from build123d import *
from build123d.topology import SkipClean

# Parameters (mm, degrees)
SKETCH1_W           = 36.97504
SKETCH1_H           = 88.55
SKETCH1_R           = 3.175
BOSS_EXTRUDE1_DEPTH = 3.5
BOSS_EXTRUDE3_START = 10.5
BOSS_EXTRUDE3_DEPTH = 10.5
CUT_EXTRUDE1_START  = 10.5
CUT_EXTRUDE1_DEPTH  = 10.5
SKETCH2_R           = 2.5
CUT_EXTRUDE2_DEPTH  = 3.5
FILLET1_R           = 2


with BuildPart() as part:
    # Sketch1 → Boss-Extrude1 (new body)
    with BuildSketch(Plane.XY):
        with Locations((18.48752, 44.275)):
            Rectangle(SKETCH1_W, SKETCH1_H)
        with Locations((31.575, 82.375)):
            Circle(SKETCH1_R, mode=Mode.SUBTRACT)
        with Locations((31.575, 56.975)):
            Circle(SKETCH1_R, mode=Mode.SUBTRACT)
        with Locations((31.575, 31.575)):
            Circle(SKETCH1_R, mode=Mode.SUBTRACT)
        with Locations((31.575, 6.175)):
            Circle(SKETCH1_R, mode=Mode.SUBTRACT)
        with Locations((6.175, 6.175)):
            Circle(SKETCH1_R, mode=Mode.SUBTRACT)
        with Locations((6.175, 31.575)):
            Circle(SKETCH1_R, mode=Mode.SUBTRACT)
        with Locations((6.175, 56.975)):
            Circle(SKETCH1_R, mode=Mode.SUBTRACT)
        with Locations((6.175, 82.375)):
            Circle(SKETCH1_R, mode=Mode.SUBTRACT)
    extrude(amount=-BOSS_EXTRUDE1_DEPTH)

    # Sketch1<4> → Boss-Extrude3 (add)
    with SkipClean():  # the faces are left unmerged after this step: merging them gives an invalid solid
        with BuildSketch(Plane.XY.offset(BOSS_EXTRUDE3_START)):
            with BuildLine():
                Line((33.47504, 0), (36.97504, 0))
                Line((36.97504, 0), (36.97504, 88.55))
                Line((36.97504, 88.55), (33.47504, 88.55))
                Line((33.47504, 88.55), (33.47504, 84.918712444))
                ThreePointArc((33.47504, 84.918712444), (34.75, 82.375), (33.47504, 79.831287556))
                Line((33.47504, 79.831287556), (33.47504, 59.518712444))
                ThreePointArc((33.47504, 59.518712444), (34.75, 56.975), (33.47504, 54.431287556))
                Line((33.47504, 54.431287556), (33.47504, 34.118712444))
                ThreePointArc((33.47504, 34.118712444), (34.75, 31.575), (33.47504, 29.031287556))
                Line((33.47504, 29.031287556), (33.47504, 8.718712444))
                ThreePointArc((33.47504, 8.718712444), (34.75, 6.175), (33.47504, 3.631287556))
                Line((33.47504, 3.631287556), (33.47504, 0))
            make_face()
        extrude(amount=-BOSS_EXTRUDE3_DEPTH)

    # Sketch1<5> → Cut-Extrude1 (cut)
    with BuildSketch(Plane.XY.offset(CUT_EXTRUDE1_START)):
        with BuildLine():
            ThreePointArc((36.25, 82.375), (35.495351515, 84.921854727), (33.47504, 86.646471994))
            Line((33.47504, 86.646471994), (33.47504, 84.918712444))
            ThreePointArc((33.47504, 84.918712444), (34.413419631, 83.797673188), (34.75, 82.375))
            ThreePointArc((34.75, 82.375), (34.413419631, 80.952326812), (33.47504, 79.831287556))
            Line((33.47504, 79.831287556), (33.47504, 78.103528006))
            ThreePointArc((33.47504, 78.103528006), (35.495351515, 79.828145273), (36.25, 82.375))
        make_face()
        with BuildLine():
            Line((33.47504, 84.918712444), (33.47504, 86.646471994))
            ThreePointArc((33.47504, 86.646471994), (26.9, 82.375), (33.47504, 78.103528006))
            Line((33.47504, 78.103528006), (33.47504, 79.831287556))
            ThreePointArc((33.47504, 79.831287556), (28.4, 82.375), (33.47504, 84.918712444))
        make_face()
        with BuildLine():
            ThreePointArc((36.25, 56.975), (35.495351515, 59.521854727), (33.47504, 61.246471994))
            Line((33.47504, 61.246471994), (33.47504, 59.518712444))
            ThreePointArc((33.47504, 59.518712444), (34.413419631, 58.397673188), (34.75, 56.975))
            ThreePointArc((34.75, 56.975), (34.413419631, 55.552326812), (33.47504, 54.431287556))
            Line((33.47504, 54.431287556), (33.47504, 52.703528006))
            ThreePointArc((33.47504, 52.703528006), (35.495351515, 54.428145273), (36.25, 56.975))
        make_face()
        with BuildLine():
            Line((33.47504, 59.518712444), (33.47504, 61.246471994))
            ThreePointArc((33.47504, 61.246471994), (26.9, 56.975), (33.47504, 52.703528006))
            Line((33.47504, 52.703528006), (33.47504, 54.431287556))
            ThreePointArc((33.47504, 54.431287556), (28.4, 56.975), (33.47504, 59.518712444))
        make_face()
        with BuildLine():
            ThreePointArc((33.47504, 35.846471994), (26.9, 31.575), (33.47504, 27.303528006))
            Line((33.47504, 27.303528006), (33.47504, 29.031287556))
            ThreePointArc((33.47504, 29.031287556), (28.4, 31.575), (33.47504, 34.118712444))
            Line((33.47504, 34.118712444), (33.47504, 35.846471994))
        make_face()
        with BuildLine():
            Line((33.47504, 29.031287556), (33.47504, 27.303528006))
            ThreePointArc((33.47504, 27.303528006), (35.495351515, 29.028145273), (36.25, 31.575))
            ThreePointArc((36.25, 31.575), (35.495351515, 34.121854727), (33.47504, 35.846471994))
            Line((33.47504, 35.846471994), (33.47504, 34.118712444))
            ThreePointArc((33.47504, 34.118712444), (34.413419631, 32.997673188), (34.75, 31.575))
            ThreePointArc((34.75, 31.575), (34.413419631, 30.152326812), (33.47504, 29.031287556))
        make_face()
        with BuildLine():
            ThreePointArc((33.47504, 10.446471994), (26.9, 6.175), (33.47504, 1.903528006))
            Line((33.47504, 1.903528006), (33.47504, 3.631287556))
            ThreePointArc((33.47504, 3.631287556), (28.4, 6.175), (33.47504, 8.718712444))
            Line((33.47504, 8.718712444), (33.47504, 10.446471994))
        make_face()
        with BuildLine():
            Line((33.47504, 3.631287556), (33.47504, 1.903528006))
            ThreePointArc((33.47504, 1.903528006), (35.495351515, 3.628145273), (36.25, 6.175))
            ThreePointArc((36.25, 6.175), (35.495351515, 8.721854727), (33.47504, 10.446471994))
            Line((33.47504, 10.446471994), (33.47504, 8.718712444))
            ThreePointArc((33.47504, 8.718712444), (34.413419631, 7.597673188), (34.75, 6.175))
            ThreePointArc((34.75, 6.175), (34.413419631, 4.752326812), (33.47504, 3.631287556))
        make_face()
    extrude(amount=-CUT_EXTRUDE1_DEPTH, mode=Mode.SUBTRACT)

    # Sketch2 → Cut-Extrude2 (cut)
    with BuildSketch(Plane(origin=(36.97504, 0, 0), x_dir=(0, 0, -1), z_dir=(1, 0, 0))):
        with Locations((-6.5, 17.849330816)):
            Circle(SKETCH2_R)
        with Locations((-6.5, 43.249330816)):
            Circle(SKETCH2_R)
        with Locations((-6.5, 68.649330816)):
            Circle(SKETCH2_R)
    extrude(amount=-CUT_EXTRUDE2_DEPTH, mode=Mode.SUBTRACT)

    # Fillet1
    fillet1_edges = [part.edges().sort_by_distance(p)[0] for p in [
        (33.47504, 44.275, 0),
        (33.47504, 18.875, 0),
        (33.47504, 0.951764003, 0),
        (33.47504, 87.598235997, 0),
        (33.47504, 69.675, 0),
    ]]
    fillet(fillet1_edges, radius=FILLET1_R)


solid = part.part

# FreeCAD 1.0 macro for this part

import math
import FreeCAD as App
import Part
import Sketcher
from FreeCAD import Vector
Q = App.Units.Quantity


def edges_at(feature, points):
    """Names of the edges that pass closest to the given points."""
    edges = feature.Shape.Edges
    near = lambda p: min(range(len(edges)), key=lambda i: edges[i].distToShape(Part.Vertex(*p))[0])
    return sorted({f"Edge{near(p) + 1}" for p in points})

doc = App.newDocument("Part")
body = doc.addObject("PartDesign::Body", "Body")

sketch1 = body.newObject("Sketcher::SketchObject", "Sketch")
sketch1.AttachmentSupport = (doc.getObject("XY_Plane"), [""])
sketch1.MapMode = "FlatFace"
sketch1.addGeometry(Part.LineSegment(Vector(0, 88.5, 0), Vector(0, 0, 0)), False)
sketch1.addGeometry(Part.LineSegment(Vector(0, 0, 0), Vector(37, 0, 0)), False)
sketch1.addGeometry(Part.LineSegment(Vector(37, 0, 0), Vector(37, 88.5, 0)), False)
sketch1.addGeometry(Part.LineSegment(Vector(37, 88.5, 0), Vector(0, 88.5, 0)), False)
sketch1.addGeometry(Part.Circle(Vector(6.2, 6.2, 0), Vector(0, 0, 1), 3.2), False)
sketch1.addGeometry(Part.Circle(Vector(6.2, 31.6, 0), Vector(0, 0, 1), 3.2), False)
sketch1.addGeometry(Part.Circle(Vector(31.6, 6.2, 0), Vector(0, 0, 1), 3.2), False)
sketch1.addGeometry(Part.Circle(Vector(31.6, 31.6, 0), Vector(0, 0, 1), 3.2), False)
sketch1.addGeometry(Part.Circle(Vector(6.2, 57, 0), Vector(0, 0, 1), 3.2), False)
sketch1.addGeometry(Part.Circle(Vector(6.2, 82.4, 0), Vector(0, 0, 1), 3.2), False)
sketch1.addGeometry(Part.Circle(Vector(31.6, 57, 0), Vector(0, 0, 1), 3.2), False)
sketch1.addGeometry(Part.Circle(Vector(31.6, 82.4, 0), Vector(0, 0, 1), 3.2), False)
sketch1.addConstraint(Sketcher.Constraint("Coincident", 0, 2, 1, 1))
sketch1.addConstraint(Sketcher.Constraint("Coincident", 1, 2, 2, 1))
sketch1.addConstraint(Sketcher.Constraint("Coincident", 2, 2, 3, 1))
sketch1.addConstraint(Sketcher.Constraint("Coincident", 3, 2, 0, 1))
sketch1.addConstraint(Sketcher.Constraint("Vertical", 0))
sketch1.addConstraint(Sketcher.Constraint("Horizontal", 1))
sketch1.addConstraint(Sketcher.Constraint("Vertical", 2))
sketch1.addConstraint(Sketcher.Constraint("Horizontal", 3))
sketch1.addConstraint(Sketcher.Constraint("Coincident", 0, 2, -1, 1))
sketch1.addConstraint(Sketcher.Constraint("Equal", 4, 5))
sketch1.addConstraint(Sketcher.Constraint("Equal", 5, 6))
sketch1.addConstraint(Sketcher.Constraint("Equal", 6, 7))
sketch1.addConstraint(Sketcher.Constraint("Equal", 7, 8))
sketch1.addConstraint(Sketcher.Constraint("Equal", 8, 9))
sketch1.addConstraint(Sketcher.Constraint("Equal", 9, 10))
sketch1.addConstraint(Sketcher.Constraint("Equal", 10, 11))
sketch1.addConstraint(Sketcher.Constraint("Horizontal", 4, 3, 6, 3))
sketch1.addConstraint(Sketcher.Constraint("Horizontal", 5, 3, 7, 3))
sketch1.addConstraint(Sketcher.Constraint("Horizontal", 8, 3, 10, 3))
sketch1.addConstraint(Sketcher.Constraint("Horizontal", 9, 3, 11, 3))
sketch1.addConstraint(Sketcher.Constraint("Vertical", 4, 3, 5, 3))
sketch1.addConstraint(Sketcher.Constraint("Vertical", 6, 3, 7, 3))
sketch1.addConstraint(Sketcher.Constraint("Vertical", 5, 3, 8, 3))
sketch1.addConstraint(Sketcher.Constraint("Vertical", 8, 3, 9, 3))
sketch1.addConstraint(Sketcher.Constraint("Vertical", 7, 3, 10, 3))
sketch1.addConstraint(Sketcher.Constraint("Vertical", 10, 3, 11, 3))
sketch1.addConstraint(Sketcher.Constraint("Diameter", 4, Q("6.35 mm")))
sketch1.addConstraint(Sketcher.Constraint("DistanceY", 0, 2, 0, 1, Q("88.55 mm")))
sketch1.addConstraint(Sketcher.Constraint("DistanceY", 4, 3, 5, 3, Q("25.4 mm")))
sketch1.addConstraint(Sketcher.Constraint("DistanceX", 4, 3, 6, 3, Q("25.4 mm")))
sketch1.addConstraint(Sketcher.Constraint("DistanceY", 5, 3, 8, 3, Q("25.4 mm")))
sketch1.addConstraint(Sketcher.Constraint("DistanceY", 8, 3, 9, 3, Q("25.4 mm")))
sketch1.addConstraint(Sketcher.Constraint("DistanceX", -1, 1, 4, 3, Q("6.175 mm")))
sketch1.addConstraint(Sketcher.Constraint("DistanceY", -1, 1, 4, 3, Q("6.175 mm")))
sketch1.addConstraint(Sketcher.Constraint("DistanceX", 1, 1, 1, 2, Q("36.97504 mm")))
pad1 = body.newObject("PartDesign::Pad", "Pad")
pad1.Profile = sketch1
pad1.Length = 3.5
pad1.Reversed = True

sketch2 = body.newObject("Sketcher::SketchObject", "Sketch001")
sketch2.AttachmentSupport = (doc.getObject("XY_Plane"), [""])
sketch2.MapMode = "FlatFace"
sketch2.AttachmentOffset = App.Placement(Vector(0, 0, 10.5), App.Rotation())
sketch2.addGeometry(Part.LineSegment(Vector(33.5, 0, 0), Vector(37, 0, 0)), False)
sketch2.addGeometry(Part.LineSegment(Vector(37, 0, 0), Vector(37, 88.5, 0)), False)
sketch2.addGeometry(Part.LineSegment(Vector(37, 88.5, 0), Vector(33.5, 88.5, 0)), False)
sketch2.addGeometry(Part.LineSegment(Vector(33.5, 88.5, 0), Vector(33.5, 84.9, 0)), False)
sketch2.addGeometry(Part.ArcOfCircle(Part.Circle(Vector(31.6, 82.4, 0), Vector(0, 0, 1), 3.2), math.radians(-53), math.radians(53)), False)
sketch2.addGeometry(Part.LineSegment(Vector(33.5, 79.8, 0), Vector(33.5, 59.5, 0)), False)
sketch2.addGeometry(Part.ArcOfCircle(Part.Circle(Vector(31.6, 57, 0), Vector(0, 0, 1), 3.2), math.radians(-53), math.radians(53)), False)
sketch2.addGeometry(Part.LineSegment(Vector(33.5, 54.4, 0), Vector(33.5, 34.1, 0)), False)
sketch2.addGeometry(Part.ArcOfCircle(Part.Circle(Vector(31.6, 31.6, 0), Vector(0, 0, 1), 3.2), math.radians(-53), math.radians(53)), False)
sketch2.addGeometry(Part.LineSegment(Vector(33.5, 29, 0), Vector(33.5, 8.7, 0)), False)
sketch2.addGeometry(Part.ArcOfCircle(Part.Circle(Vector(31.6, 6.2, 0), Vector(0, 0, 1), 3.2), math.radians(-53), math.radians(53)), False)
sketch2.addGeometry(Part.LineSegment(Vector(33.5, 3.6, 0), Vector(33.5, 0, 0)), False)
sketch2.addConstraint(Sketcher.Constraint("Coincident", 0, 2, 1, 1))
sketch2.addConstraint(Sketcher.Constraint("Coincident", 1, 2, 2, 1))
sketch2.addConstraint(Sketcher.Constraint("Coincident", 2, 2, 3, 1))
sketch2.addConstraint(Sketcher.Constraint("Coincident", 3, 2, 4, 2))
sketch2.addConstraint(Sketcher.Constraint("Coincident", 4, 1, 5, 1))
sketch2.addConstraint(Sketcher.Constraint("Coincident", 5, 2, 6, 2))
sketch2.addConstraint(Sketcher.Constraint("Coincident", 6, 1, 7, 1))
sketch2.addConstraint(Sketcher.Constraint("Coincident", 7, 2, 8, 2))
sketch2.addConstraint(Sketcher.Constraint("Coincident", 8, 1, 9, 1))
sketch2.addConstraint(Sketcher.Constraint("Coincident", 9, 2, 10, 2))
sketch2.addConstraint(Sketcher.Constraint("Coincident", 10, 1, 11, 1))
sketch2.addConstraint(Sketcher.Constraint("Coincident", 11, 2, 0, 1))
sketch2.addConstraint(Sketcher.Constraint("Horizontal", 0))
sketch2.addConstraint(Sketcher.Constraint("Vertical", 1))
sketch2.addConstraint(Sketcher.Constraint("Horizontal", 2))
sketch2.addConstraint(Sketcher.Constraint("Vertical", 3))
sketch2.addConstraint(Sketcher.Constraint("Vertical", 5))
sketch2.addConstraint(Sketcher.Constraint("Vertical", 7))
sketch2.addConstraint(Sketcher.Constraint("Vertical", 9))
sketch2.addConstraint(Sketcher.Constraint("Vertical", 11))
sketch2.addConstraint(Sketcher.Constraint("Equal", 4, 6))
sketch2.addConstraint(Sketcher.Constraint("Equal", 6, 8))
sketch2.addConstraint(Sketcher.Constraint("Equal", 8, 10))
sketch2.addConstraint(Sketcher.Constraint("PointOnObject", 0, 2, -1))
sketch2.addConstraint(Sketcher.Constraint("Vertical", 4, 3, 6, 3))
sketch2.addConstraint(Sketcher.Constraint("Vertical", 6, 3, 8, 3))
sketch2.addConstraint(Sketcher.Constraint("Vertical", 8, 3, 10, 3))
sketch2.addConstraint(Sketcher.Constraint("Vertical", 3, 2, 4, 1))
sketch2.addConstraint(Sketcher.Constraint("Vertical", 5, 2, 6, 1))
sketch2.addConstraint(Sketcher.Constraint("Vertical", 7, 2, 8, 1))
sketch2.addConstraint(Sketcher.Constraint("Vertical", 9, 2, 10, 1))
sketch2.addConstraint(Sketcher.Constraint("Equal", 5, 7))
sketch2.addConstraint(Sketcher.Constraint("Equal", 7, 9))
sketch2.addConstraint(Sketcher.Constraint("Equal", 3, 11))
sketch2.addConstraint(Sketcher.Constraint("DistanceX", 0, 1, 0, 2, Q("3.5 mm")))
sketch2.addConstraint(Sketcher.Constraint("Radius", 4, Q("3.175 mm")))
sketch2.addConstraint(Sketcher.Constraint("DistanceY", 1, 1, 1, 2, Q("88.55 mm")))
sketch2.addConstraint(Sketcher.Constraint("DistanceY", 6, 3, 4, 3, Q("25.4 mm")))
sketch2.addConstraint(Sketcher.Constraint("DistanceX", -1, 1, 4, 3, Q("31.575 mm")))
sketch2.addConstraint(Sketcher.Constraint("DistanceY", 3, 2, 3, 1, Q("3.631288 mm")))
pad2 = body.newObject("PartDesign::Pad", "Pad001")
pad2.Profile = sketch2
pad2.Length = 10.5
pad2.Reversed = True

sketch3 = body.newObject("Sketcher::SketchObject", "Sketch002")
sketch3.AttachmentSupport = (doc.getObject("XY_Plane"), [""])
sketch3.MapMode = "FlatFace"
sketch3.AttachmentOffset = App.Placement(Vector(0, 0, 10.5), App.Rotation())
sketch3.addGeometry(Part.ArcOfCircle(Part.Circle(Vector(31.6, 82.4, 0), Vector(0, 0, 1), 4.7), math.radians(0), math.radians(66)), False)
sketch3.addGeometry(Part.ArcOfCircle(Part.Circle(Vector(31.6, 82.4, 0), Vector(0, 0, 1), 4.7), math.radians(66), math.radians(294)), False)
sketch3.addGeometry(Part.ArcOfCircle(Part.Circle(Vector(31.6, 82.4, 0), Vector(0, 0, 1), 4.7), math.radians(-66), math.radians(0)), False)
sketch3.addGeometry(Part.ArcOfCircle(Part.Circle(Vector(31.6, 82.4, 0), Vector(0, 0, 1), 3.2), math.radians(0), math.radians(53)), False)
sketch3.addGeometry(Part.ArcOfCircle(Part.Circle(Vector(31.6, 82.4, 0), Vector(0, 0, 1), 3.2), math.radians(-53), math.radians(0)), False)
sketch3.addGeometry(Part.ArcOfCircle(Part.Circle(Vector(31.6, 82.4, 0), Vector(0, 0, 1), 3.2), math.radians(53), math.radians(307)), False)
sketch3.addGeometry(Part.ArcOfCircle(Part.Circle(Vector(31.6, 57, 0), Vector(0, 0, 1), 4.7), math.radians(0), math.radians(66)), False)
sketch3.addGeometry(Part.ArcOfCircle(Part.Circle(Vector(31.6, 57, 0), Vector(0, 0, 1), 4.7), math.radians(66), math.radians(294)), False)
sketch3.addGeometry(Part.ArcOfCircle(Part.Circle(Vector(31.6, 57, 0), Vector(0, 0, 1), 4.7), math.radians(-66), math.radians(0)), False)
sketch3.addGeometry(Part.ArcOfCircle(Part.Circle(Vector(31.6, 57, 0), Vector(0, 0, 1), 3.2), math.radians(0), math.radians(53)), False)
sketch3.addGeometry(Part.ArcOfCircle(Part.Circle(Vector(31.6, 57, 0), Vector(0, 0, 1), 3.2), math.radians(-53), math.radians(0)), False)
sketch3.addGeometry(Part.ArcOfCircle(Part.Circle(Vector(31.6, 57, 0), Vector(0, 0, 1), 3.2), math.radians(53), math.radians(307)), False)
sketch3.addGeometry(Part.ArcOfCircle(Part.Circle(Vector(31.6, 31.6, 0), Vector(0, 0, 1), 4.7), math.radians(66), math.radians(294)), False)
sketch3.addGeometry(Part.ArcOfCircle(Part.Circle(Vector(31.6, 31.6, 0), Vector(0, 0, 1), 4.7), math.radians(-66), math.radians(0)), False)
sketch3.addGeometry(Part.ArcOfCircle(Part.Circle(Vector(31.6, 31.6, 0), Vector(0, 0, 1), 4.7), math.radians(0), math.radians(66)), False)
sketch3.addGeometry(Part.ArcOfCircle(Part.Circle(Vector(31.6, 31.6, 0), Vector(0, 0, 1), 3.2), math.radians(53), math.radians(307)), False)
sketch3.addGeometry(Part.ArcOfCircle(Part.Circle(Vector(31.6, 31.6, 0), Vector(0, 0, 1), 3.2), math.radians(0), math.radians(53)), False)
sketch3.addGeometry(Part.ArcOfCircle(Part.Circle(Vector(31.6, 31.6, 0), Vector(0, 0, 1), 3.2), math.radians(-53), math.radians(0)), False)
sketch3.addGeometry(Part.ArcOfCircle(Part.Circle(Vector(31.6, 6.2, 0), Vector(0, 0, 1), 4.7), math.radians(66), math.radians(294)), False)
sketch3.addGeometry(Part.ArcOfCircle(Part.Circle(Vector(31.6, 6.2, 0), Vector(0, 0, 1), 4.7), math.radians(-66), math.radians(0)), False)
sketch3.addGeometry(Part.ArcOfCircle(Part.Circle(Vector(31.6, 6.2, 0), Vector(0, 0, 1), 4.7), math.radians(0), math.radians(66)), False)
sketch3.addGeometry(Part.ArcOfCircle(Part.Circle(Vector(31.6, 6.2, 0), Vector(0, 0, 1), 3.2), math.radians(53), math.radians(307)), False)
sketch3.addGeometry(Part.ArcOfCircle(Part.Circle(Vector(31.6, 6.2, 0), Vector(0, 0, 1), 3.2), math.radians(0), math.radians(53)), False)
sketch3.addGeometry(Part.ArcOfCircle(Part.Circle(Vector(31.6, 6.2, 0), Vector(0, 0, 1), 3.2), math.radians(-53), math.radians(0)), False)
sketch3.addConstraint(Sketcher.Constraint("Tangent", 0, 2, 1, 1))
sketch3.addConstraint(Sketcher.Constraint("Tangent", 1, 2, 2, 1))
sketch3.addConstraint(Sketcher.Constraint("Tangent", 2, 2, 0, 1))
sketch3.addConstraint(Sketcher.Constraint("Tangent", 3, 1, 4, 2))
sketch3.addConstraint(Sketcher.Constraint("Tangent", 4, 1, 5, 2))
sketch3.addConstraint(Sketcher.Constraint("Tangent", 5, 1, 3, 2))
sketch3.addConstraint(Sketcher.Constraint("Tangent", 6, 2, 7, 1))
sketch3.addConstraint(Sketcher.Constraint("Tangent", 7, 2, 8, 1))
sketch3.addConstraint(Sketcher.Constraint("Tangent", 8, 2, 6, 1))
sketch3.addConstraint(Sketcher.Constraint("Tangent", 9, 1, 10, 2))
sketch3.addConstraint(Sketcher.Constraint("Tangent", 10, 1, 11, 2))
sketch3.addConstraint(Sketcher.Constraint("Tangent", 11, 1, 9, 2))
sketch3.addConstraint(Sketcher.Constraint("Tangent", 12, 2, 13, 1))
sketch3.addConstraint(Sketcher.Constraint("Tangent", 13, 2, 14, 1))
sketch3.addConstraint(Sketcher.Constraint("Tangent", 14, 2, 12, 1))
sketch3.addConstraint(Sketcher.Constraint("Tangent", 15, 1, 16, 2))
sketch3.addConstraint(Sketcher.Constraint("Tangent", 16, 1, 17, 2))
sketch3.addConstraint(Sketcher.Constraint("Tangent", 17, 1, 15, 2))
sketch3.addConstraint(Sketcher.Constraint("Tangent", 18, 2, 19, 1))
sketch3.addConstraint(Sketcher.Constraint("Tangent", 19, 2, 20, 1))
sketch3.addConstraint(Sketcher.Constraint("Tangent", 20, 2, 18, 1))
sketch3.addConstraint(Sketcher.Constraint("Tangent", 21, 1, 22, 2))
sketch3.addConstraint(Sketcher.Constraint("Tangent", 22, 1, 23, 2))
sketch3.addConstraint(Sketcher.Constraint("Tangent", 23, 1, 21, 2))
sketch3.addConstraint(Sketcher.Constraint("Coincident", 3, 3, 0, 3))
sketch3.addConstraint(Sketcher.Constraint("Coincident", 9, 3, 6, 3))
sketch3.addConstraint(Sketcher.Constraint("Coincident", 15, 3, 12, 3))
sketch3.addConstraint(Sketcher.Constraint("Coincident", 21, 3, 18, 3))
sketch3.addConstraint(Sketcher.Constraint("Equal", 2, 6))
sketch3.addConstraint(Sketcher.Constraint("Equal", 5, 9))
sketch3.addConstraint(Sketcher.Constraint("Equal", 8, 12))
sketch3.addConstraint(Sketcher.Constraint("Equal", 11, 15))
sketch3.addConstraint(Sketcher.Constraint("Equal", 14, 18))
sketch3.addConstraint(Sketcher.Constraint("Equal", 17, 21))
sketch3.addConstraint(Sketcher.Constraint("Horizontal", 5, 3, 2, 2))
sketch3.addConstraint(Sketcher.Constraint("Horizontal", 2, 2, 3, 1))
sketch3.addConstraint(Sketcher.Constraint("Horizontal", 11, 3, 8, 2))
sketch3.addConstraint(Sketcher.Constraint("Horizontal", 8, 2, 9, 1))
sketch3.addConstraint(Sketcher.Constraint("Horizontal", 17, 3, 13, 2))
sketch3.addConstraint(Sketcher.Constraint("Horizontal", 13, 2, 16, 1))
sketch3.addConstraint(Sketcher.Constraint("Horizontal", 23, 3, 19, 2))
sketch3.addConstraint(Sketcher.Constraint("Horizontal", 19, 2, 22, 1))
sketch3.addConstraint(Sketcher.Constraint("Vertical", 5, 3, 6, 3))
sketch3.addConstraint(Sketcher.Constraint("Vertical", 11, 3, 12, 3))
sketch3.addConstraint(Sketcher.Constraint("Vertical", 17, 3, 18, 3))
sketch3.addConstraint(Sketcher.Constraint("Vertical", 0, 2, 1, 2))
sketch3.addConstraint(Sketcher.Constraint("Vertical", 1, 2, 4, 1))
sketch3.addConstraint(Sketcher.Constraint("Vertical", 4, 1, 5, 1))
sketch3.addConstraint(Sketcher.Constraint("Vertical", 5, 1, 6, 2))
sketch3.addConstraint(Sketcher.Constraint("Vertical", 6, 2, 7, 2))
sketch3.addConstraint(Sketcher.Constraint("Vertical", 7, 2, 10, 1))
sketch3.addConstraint(Sketcher.Constraint("Vertical", 10, 1, 11, 1))
sketch3.addConstraint(Sketcher.Constraint("Vertical", 11, 1, 12, 2))
sketch3.addConstraint(Sketcher.Constraint("Vertical", 12, 2, 14, 2))
sketch3.addConstraint(Sketcher.Constraint("Vertical", 14, 2, 15, 1))
sketch3.addConstraint(Sketcher.Constraint("Vertical", 15, 1, 17, 1))
sketch3.addConstraint(Sketcher.Constraint("Vertical", 17, 1, 18, 2))
sketch3.addConstraint(Sketcher.Constraint("Vertical", 18, 2, 20, 2))
sketch3.addConstraint(Sketcher.Constraint("Vertical", 20, 2, 21, 1))
sketch3.addConstraint(Sketcher.Constraint("Vertical", 21, 1, 23, 1))
sketch3.addConstraint(Sketcher.Constraint("Radius", 0, Q("4.675 mm")))
sketch3.addConstraint(Sketcher.Constraint("Radius", 3, Q("3.175 mm")))
sketch3.addConstraint(Sketcher.Constraint("DistanceY", 6, 3, 2, 3, Q("25.4 mm")))
sketch3.addConstraint(Sketcher.Constraint("DistanceY", 12, 3, 8, 3, Q("25.4 mm")))
sketch3.addConstraint(Sketcher.Constraint("DistanceY", 18, 3, 13, 3, Q("25.4 mm")))
sketch3.addConstraint(Sketcher.Constraint("DistanceX", -1, 1, 2, 2, Q("36.25 mm")))
sketch3.addConstraint(Sketcher.Constraint("DistanceY", -1, 1, 0, 3, Q("82.375 mm")))
sketch3.addConstraint(Sketcher.Constraint("DistanceX", -1, 1, 0, 2, Q("33.47504 mm")))
pocket1 = body.newObject("PartDesign::Pocket", "Pocket")
pocket1.Profile = sketch3
pocket1.Length = 10.5

sketch4 = body.newObject("Sketcher::SketchObject", "Sketch003")
sketch4.AttachmentSupport = (doc.getObject("YZ_Plane"), [""])
sketch4.MapMode = "FlatFace"
sketch4.AttachmentOffset = App.Placement(Vector(0, 0, 36.97504), App.Rotation())
sketch4.addGeometry(Part.Circle(Vector(17.8, 6.5, 0), Vector(0, 0, 1), 2.5), False)
sketch4.addGeometry(Part.Circle(Vector(43.2, 6.5, 0), Vector(0, 0, 1), 2.5), False)
sketch4.addGeometry(Part.Circle(Vector(68.6, 6.5, 0), Vector(0, 0, 1), 2.5), False)
sketch4.addConstraint(Sketcher.Constraint("Equal", 0, 1))
sketch4.addConstraint(Sketcher.Constraint("Equal", 1, 2))
sketch4.addConstraint(Sketcher.Constraint("Horizontal", 0, 3, 1, 3))
sketch4.addConstraint(Sketcher.Constraint("Horizontal", 1, 3, 2, 3))
sketch4.addConstraint(Sketcher.Constraint("Diameter", 0, Q("5 mm")))
sketch4.addConstraint(Sketcher.Constraint("DistanceY", -1, 1, 0, 3, Q("6.5 mm")))
sketch4.addConstraint(Sketcher.Constraint("DistanceX", 0, 3, 1, 3, Q("25.4 mm")))
sketch4.addConstraint(Sketcher.Constraint("DistanceX", 1, 3, 2, 3, Q("25.4 mm")))
sketch4.addConstraint(Sketcher.Constraint("DistanceX", -1, 1, 0, 3, Q("17.849331 mm")))
pocket2 = body.newObject("PartDesign::Pocket", "Pocket001")
pocket2.Profile = sketch4
pocket2.Length = 3.5
doc.recompute()

fillet = body.newObject("PartDesign::Fillet", "Fillet")
fillet.Base = (pocket2, edges_at(pocket2, [
    (33.475, 44.275, 0),
    (33.475, 18.875, 0),
    (33.475, 0.952, 0),
    (33.475, 87.598, 0),
    (33.475, 69.675, 0),
]))
fillet.Radius = 2

doc.recompute()
